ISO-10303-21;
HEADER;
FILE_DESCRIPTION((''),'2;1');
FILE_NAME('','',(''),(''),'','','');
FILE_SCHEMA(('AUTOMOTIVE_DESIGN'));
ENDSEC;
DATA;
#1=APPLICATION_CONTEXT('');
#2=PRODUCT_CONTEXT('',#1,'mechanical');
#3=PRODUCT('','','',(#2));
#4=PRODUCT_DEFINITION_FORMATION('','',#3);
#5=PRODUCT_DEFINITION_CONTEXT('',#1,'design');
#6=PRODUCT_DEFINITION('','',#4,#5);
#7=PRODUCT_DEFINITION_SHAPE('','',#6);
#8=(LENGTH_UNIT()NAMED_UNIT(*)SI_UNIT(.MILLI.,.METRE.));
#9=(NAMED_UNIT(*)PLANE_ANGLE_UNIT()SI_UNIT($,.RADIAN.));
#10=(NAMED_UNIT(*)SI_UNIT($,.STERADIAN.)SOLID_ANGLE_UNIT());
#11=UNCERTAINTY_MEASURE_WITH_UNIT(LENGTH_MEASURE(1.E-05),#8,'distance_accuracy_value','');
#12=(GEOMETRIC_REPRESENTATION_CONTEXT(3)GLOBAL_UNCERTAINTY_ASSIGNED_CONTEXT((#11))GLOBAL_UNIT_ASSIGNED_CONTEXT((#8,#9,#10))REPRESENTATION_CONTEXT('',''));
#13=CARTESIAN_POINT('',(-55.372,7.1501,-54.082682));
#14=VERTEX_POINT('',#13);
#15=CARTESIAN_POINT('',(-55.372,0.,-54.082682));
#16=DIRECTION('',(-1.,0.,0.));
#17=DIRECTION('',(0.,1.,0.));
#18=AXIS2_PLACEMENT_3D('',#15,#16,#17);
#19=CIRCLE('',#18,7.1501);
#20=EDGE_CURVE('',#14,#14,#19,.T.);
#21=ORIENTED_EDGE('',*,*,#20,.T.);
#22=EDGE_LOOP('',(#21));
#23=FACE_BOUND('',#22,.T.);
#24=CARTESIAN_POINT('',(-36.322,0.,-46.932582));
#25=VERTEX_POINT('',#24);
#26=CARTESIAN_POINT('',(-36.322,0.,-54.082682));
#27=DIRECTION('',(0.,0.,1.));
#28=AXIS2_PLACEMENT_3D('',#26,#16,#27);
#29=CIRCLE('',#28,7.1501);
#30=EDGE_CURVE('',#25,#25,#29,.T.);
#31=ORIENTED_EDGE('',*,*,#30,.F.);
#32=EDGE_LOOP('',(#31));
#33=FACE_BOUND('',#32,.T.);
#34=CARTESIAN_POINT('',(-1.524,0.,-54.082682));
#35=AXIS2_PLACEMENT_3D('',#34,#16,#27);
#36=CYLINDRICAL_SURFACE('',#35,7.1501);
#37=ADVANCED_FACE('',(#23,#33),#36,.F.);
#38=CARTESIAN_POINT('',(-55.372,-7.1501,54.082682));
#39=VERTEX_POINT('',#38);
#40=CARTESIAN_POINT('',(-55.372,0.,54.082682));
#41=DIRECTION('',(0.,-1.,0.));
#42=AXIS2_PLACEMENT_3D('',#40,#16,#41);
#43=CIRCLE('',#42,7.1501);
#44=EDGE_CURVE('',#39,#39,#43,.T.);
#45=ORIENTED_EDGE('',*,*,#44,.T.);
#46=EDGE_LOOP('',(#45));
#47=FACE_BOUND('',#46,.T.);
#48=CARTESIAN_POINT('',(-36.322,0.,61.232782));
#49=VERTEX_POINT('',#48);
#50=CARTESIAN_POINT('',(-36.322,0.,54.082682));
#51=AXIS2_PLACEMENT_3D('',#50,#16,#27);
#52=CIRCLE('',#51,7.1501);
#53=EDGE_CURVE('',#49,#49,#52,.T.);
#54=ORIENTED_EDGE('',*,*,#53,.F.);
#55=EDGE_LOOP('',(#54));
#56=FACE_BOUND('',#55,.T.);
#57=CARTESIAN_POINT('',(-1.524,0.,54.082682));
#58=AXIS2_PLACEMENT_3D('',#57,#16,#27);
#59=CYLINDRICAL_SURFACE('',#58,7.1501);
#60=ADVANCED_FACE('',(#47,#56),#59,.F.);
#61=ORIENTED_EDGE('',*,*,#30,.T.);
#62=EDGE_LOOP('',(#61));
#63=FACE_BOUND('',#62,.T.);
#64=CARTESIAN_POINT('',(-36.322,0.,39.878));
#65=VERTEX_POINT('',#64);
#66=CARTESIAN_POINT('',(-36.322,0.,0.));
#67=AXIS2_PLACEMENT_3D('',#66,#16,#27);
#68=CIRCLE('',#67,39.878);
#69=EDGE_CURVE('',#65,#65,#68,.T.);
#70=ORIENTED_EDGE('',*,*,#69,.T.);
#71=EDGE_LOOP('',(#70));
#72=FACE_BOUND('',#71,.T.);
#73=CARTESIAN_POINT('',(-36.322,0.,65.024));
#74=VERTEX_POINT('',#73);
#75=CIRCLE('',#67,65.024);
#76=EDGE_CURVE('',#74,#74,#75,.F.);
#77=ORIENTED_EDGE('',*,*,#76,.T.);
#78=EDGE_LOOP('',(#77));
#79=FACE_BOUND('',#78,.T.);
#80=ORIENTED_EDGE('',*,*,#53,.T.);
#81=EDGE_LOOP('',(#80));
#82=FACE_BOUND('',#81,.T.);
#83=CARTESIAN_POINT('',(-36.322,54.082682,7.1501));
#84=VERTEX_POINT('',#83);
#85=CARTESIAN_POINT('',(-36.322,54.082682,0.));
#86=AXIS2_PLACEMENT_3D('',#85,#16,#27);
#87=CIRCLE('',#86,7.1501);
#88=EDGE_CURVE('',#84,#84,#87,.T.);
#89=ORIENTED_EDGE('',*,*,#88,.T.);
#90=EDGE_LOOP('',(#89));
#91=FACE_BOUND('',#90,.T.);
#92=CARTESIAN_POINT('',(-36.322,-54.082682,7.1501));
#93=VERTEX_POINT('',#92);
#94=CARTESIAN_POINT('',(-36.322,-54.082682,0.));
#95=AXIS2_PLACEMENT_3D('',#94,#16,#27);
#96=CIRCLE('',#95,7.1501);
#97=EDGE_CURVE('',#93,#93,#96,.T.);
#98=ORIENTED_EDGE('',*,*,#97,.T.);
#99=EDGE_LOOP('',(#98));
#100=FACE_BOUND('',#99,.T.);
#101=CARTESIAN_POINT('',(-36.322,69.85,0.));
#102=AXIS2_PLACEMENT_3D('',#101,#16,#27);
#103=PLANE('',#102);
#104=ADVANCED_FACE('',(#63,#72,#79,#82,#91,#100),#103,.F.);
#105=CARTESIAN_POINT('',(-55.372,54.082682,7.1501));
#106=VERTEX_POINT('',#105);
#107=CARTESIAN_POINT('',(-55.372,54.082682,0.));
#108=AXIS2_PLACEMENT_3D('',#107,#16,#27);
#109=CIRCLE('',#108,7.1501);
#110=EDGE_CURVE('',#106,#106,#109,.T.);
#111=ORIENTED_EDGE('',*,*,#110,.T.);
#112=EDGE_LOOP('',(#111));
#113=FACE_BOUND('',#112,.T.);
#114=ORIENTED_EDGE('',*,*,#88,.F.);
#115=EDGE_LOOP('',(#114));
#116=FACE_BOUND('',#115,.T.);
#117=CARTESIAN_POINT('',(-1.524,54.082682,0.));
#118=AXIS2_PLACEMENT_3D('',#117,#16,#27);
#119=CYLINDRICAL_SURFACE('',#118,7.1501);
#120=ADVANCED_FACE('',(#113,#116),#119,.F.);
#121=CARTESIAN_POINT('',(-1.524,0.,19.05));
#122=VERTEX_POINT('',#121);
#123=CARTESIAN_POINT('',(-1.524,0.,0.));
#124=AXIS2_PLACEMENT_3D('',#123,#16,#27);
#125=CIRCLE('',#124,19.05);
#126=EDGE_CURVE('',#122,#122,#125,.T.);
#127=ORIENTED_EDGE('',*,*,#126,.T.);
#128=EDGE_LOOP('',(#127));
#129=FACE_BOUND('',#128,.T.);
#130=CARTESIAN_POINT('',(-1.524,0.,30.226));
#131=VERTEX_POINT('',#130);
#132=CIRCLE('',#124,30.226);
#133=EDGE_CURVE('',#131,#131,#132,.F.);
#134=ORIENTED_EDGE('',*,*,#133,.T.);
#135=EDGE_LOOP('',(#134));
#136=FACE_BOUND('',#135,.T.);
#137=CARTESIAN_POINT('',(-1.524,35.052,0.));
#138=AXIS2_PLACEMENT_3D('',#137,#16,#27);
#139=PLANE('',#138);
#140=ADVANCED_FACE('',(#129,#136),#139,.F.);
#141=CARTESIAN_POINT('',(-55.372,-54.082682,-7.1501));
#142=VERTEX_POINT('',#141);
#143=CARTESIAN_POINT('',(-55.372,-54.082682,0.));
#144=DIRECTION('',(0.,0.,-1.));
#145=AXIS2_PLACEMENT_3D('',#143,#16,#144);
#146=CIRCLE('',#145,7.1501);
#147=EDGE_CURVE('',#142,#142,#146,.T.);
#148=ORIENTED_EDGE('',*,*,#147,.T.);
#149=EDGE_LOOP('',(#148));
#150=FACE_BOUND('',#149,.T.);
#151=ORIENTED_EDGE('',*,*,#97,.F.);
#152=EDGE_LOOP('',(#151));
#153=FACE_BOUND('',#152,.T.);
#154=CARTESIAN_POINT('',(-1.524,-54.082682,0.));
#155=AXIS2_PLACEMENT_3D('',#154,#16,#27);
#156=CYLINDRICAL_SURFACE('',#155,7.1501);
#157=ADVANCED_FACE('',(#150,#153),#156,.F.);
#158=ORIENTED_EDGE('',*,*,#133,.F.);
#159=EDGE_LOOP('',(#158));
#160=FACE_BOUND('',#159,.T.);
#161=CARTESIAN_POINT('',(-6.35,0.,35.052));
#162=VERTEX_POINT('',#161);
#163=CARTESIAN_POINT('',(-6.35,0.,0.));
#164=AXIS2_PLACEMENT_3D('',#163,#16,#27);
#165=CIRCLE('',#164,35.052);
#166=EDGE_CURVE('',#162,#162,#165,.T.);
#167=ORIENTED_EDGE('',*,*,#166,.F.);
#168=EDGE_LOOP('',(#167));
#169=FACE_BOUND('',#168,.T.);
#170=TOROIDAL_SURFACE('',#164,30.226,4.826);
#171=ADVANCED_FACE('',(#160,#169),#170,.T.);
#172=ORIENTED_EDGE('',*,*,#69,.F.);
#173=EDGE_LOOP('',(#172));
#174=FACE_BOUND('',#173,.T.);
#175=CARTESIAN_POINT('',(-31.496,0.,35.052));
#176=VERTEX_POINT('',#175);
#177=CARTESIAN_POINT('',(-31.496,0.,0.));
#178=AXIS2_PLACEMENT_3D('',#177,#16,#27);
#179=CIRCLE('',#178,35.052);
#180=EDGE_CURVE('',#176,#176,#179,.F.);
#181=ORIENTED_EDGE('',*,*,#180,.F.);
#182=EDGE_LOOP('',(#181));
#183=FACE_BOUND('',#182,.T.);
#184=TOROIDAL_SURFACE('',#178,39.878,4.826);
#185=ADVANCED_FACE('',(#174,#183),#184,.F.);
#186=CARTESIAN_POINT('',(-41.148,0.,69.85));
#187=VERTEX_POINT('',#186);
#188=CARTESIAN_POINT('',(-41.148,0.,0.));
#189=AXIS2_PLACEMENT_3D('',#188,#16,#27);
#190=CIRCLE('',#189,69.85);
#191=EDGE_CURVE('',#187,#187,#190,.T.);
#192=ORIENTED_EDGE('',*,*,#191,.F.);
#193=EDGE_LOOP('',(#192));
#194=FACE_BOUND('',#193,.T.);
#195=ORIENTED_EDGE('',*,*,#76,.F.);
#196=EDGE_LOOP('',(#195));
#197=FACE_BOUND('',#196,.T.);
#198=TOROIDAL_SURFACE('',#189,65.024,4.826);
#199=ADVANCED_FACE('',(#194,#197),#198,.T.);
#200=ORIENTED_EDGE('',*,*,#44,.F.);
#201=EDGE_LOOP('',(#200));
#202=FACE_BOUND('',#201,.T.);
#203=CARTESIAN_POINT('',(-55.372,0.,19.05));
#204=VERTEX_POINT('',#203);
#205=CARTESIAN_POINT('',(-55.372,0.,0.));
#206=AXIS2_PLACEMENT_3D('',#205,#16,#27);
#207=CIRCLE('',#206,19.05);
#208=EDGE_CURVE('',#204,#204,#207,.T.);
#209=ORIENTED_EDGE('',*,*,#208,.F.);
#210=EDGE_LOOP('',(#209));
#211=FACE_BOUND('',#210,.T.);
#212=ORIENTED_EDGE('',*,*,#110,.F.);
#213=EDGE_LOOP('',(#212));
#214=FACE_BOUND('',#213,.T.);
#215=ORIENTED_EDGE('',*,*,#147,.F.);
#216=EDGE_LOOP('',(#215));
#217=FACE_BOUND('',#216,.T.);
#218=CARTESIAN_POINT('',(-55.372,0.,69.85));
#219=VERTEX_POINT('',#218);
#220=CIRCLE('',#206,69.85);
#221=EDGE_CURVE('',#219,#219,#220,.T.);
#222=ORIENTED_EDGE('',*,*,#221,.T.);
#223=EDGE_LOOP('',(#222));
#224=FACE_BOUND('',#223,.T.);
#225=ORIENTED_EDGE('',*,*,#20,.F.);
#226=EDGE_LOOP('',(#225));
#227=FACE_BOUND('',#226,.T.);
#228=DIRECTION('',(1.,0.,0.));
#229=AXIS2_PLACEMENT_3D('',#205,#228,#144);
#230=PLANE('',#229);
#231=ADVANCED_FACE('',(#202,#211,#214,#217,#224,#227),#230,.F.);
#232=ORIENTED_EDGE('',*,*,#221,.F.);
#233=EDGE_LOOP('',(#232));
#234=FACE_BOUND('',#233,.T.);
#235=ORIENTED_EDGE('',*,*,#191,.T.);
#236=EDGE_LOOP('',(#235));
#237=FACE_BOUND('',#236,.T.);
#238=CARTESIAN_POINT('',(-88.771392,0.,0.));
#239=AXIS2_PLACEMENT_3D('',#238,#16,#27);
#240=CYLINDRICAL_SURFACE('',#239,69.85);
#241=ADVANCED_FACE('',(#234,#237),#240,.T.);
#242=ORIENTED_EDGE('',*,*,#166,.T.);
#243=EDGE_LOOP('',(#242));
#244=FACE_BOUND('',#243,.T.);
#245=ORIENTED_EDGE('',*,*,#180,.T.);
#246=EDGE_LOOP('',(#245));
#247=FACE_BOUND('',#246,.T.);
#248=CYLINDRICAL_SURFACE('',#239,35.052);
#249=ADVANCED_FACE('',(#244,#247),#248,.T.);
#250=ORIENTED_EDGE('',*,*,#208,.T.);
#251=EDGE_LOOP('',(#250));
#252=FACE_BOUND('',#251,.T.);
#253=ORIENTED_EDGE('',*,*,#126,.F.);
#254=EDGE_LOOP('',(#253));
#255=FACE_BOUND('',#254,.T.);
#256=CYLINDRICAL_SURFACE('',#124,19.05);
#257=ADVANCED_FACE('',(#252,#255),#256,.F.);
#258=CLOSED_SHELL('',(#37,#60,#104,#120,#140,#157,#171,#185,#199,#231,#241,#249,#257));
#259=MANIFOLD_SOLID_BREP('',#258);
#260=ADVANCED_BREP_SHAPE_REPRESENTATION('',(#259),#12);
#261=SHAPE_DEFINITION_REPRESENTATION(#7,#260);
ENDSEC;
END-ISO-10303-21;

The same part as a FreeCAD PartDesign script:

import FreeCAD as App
import Part
import Sketcher
Q = App.Units.Quantity


def edges_at(feature, points):
    """Names of the edges that pass closest to the given points."""
    edges = feature.Shape.Edges
    near = lambda p: min(range(len(edges)), key=lambda i: edges[i].distToShape(Part.Vertex(*p))[0])
    return sorted({f"Edge{near(p) + 1}" for p in points})


def add_polygon(sketch, points):
    """Adds a closed chain of lines whose ends are joined by coincident constraints."""
    first, n = sketch.GeometryCount, len(points)
    for a, b in zip(points, points[1:] + points[:1]):
        sketch.addGeometry(Part.LineSegment(App.Vector(*a, 0), App.Vector(*b, 0)), False)
    for i in range(n):
        sketch.addConstraint(Sketcher.Constraint("Coincident", first + i, 2, first + (i + 1) % n, 1))

doc = App.newDocument("Part")
body = doc.addObject("PartDesign::Body", "Body")

sketch1 = body.newObject("Sketcher::SketchObject", "Sketch")
sketch1.AttachmentSupport = (doc.getObject("XY_Plane"), [""])
sketch1.MapMode = "FlatFace"
add_polygon(sketch1, [(-2, 35), (-36, 35), (-36, 70), (-55, 70), (-55, 0), (-2, 0)])
sketch1.addConstraint([
    Sketcher.Constraint("Horizontal", 0),
    Sketcher.Constraint("Vertical", 1),
    Sketcher.Constraint("Horizontal", 2),
    Sketcher.Constraint("Vertical", 3),
    Sketcher.Constraint("Horizontal", 4),
    Sketcher.Constraint("Vertical", 5),
    Sketcher.Constraint("PointOnObject", 3, 2, -1),
    Sketcher.Constraint("Equal", 0, 1),
    Sketcher.Constraint("DistanceX", 0, 2, 0, 1, Q("1.37 in")),
    Sketcher.Constraint("DistanceX", 2, 2, 2, 1, Q("0.75 in")),
    Sketcher.Constraint("DistanceY", 3, 2, 3, 1, Q("2.75 in")),
    Sketcher.Constraint("DistanceX", 0, 2, -1, 1, Q("1.43 in")),
])
revolution = body.newObject("PartDesign::Revolution", "Revolution")
revolution.Profile = sketch1
revolution.ReferenceAxis = (sketch1, ["H_Axis"])
revolution.Angle = 360

sketch2 = body.newObject("Sketcher::SketchObject", "Sketch001")
sketch2.AttachmentSupport = (doc.getObject("YZ_Plane"), [""])
sketch2.MapMode = "FlatFace"
sketch2.AttachmentOffset = App.Placement(App.Vector(0, 0, -2.18 * 25.4), App.Rotation())
sketch2.addGeometry(Part.Circle(App.Vector(0, 0, 0), App.Vector(0, 0, 1), 19), False)
sketch2.addConstraint([
    Sketcher.Constraint("Coincident", 0, 3, -1, 1),
    Sketcher.Constraint("Diameter", 0, Q("1.5 in")),
])
pocket1 = body.newObject("PartDesign::Pocket", "Pocket")
pocket1.Profile = sketch2
pocket1.Type = "ThroughAll"
pocket1.Reversed = True

sketch3 = body.newObject("Sketcher::SketchObject", "Sketch002")
sketch3.AttachmentSupport = (doc.getObject("YZ_Plane"), [""])
sketch3.MapMode = "FlatFace"
sketch3.AttachmentOffset = App.Placement(App.Vector(0, 0, -2.18 * 25.4), App.Rotation())
sketch3.addGeometry(Part.Circle(App.Vector(54, 0, 0), App.Vector(0, 0, 1), 7), False)
sketch3.addConstraint([
    Sketcher.Constraint("PointOnObject", 0, 3, -1),
    Sketcher.Constraint("Diameter", 0, Q("0.563 in")),
    Sketcher.Constraint("DistanceX", -1, 1, 0, 3, Q("54.082682 mm")),
])
pocket2 = body.newObject("PartDesign::Pocket", "Pocket001")
pocket2.Profile = sketch3
pocket2.Type = "ThroughAll"
pocket2.Reversed = True
doc.recompute()

polarpattern = body.newObject("PartDesign::PolarPattern", "PolarPattern")
polarpattern.Originals = [pocket2]
polarpattern.Axis = (doc.getObject("X_Axis"), [""])
polarpattern.Angle = 360
polarpattern.Occurrences = 4
body.Tip = polarpattern
doc.recompute()

fillet = body.newObject("PartDesign::Fillet", "Fillet")
fillet.Base = (polarpattern, edges_at(polarpattern, [(-36.322, 0, -35.052), (-1.524, 0, -35.052), (-36.322, 0, -69.85)]))
fillet.Radius = Q("0.19 in")

doc.recompute()
